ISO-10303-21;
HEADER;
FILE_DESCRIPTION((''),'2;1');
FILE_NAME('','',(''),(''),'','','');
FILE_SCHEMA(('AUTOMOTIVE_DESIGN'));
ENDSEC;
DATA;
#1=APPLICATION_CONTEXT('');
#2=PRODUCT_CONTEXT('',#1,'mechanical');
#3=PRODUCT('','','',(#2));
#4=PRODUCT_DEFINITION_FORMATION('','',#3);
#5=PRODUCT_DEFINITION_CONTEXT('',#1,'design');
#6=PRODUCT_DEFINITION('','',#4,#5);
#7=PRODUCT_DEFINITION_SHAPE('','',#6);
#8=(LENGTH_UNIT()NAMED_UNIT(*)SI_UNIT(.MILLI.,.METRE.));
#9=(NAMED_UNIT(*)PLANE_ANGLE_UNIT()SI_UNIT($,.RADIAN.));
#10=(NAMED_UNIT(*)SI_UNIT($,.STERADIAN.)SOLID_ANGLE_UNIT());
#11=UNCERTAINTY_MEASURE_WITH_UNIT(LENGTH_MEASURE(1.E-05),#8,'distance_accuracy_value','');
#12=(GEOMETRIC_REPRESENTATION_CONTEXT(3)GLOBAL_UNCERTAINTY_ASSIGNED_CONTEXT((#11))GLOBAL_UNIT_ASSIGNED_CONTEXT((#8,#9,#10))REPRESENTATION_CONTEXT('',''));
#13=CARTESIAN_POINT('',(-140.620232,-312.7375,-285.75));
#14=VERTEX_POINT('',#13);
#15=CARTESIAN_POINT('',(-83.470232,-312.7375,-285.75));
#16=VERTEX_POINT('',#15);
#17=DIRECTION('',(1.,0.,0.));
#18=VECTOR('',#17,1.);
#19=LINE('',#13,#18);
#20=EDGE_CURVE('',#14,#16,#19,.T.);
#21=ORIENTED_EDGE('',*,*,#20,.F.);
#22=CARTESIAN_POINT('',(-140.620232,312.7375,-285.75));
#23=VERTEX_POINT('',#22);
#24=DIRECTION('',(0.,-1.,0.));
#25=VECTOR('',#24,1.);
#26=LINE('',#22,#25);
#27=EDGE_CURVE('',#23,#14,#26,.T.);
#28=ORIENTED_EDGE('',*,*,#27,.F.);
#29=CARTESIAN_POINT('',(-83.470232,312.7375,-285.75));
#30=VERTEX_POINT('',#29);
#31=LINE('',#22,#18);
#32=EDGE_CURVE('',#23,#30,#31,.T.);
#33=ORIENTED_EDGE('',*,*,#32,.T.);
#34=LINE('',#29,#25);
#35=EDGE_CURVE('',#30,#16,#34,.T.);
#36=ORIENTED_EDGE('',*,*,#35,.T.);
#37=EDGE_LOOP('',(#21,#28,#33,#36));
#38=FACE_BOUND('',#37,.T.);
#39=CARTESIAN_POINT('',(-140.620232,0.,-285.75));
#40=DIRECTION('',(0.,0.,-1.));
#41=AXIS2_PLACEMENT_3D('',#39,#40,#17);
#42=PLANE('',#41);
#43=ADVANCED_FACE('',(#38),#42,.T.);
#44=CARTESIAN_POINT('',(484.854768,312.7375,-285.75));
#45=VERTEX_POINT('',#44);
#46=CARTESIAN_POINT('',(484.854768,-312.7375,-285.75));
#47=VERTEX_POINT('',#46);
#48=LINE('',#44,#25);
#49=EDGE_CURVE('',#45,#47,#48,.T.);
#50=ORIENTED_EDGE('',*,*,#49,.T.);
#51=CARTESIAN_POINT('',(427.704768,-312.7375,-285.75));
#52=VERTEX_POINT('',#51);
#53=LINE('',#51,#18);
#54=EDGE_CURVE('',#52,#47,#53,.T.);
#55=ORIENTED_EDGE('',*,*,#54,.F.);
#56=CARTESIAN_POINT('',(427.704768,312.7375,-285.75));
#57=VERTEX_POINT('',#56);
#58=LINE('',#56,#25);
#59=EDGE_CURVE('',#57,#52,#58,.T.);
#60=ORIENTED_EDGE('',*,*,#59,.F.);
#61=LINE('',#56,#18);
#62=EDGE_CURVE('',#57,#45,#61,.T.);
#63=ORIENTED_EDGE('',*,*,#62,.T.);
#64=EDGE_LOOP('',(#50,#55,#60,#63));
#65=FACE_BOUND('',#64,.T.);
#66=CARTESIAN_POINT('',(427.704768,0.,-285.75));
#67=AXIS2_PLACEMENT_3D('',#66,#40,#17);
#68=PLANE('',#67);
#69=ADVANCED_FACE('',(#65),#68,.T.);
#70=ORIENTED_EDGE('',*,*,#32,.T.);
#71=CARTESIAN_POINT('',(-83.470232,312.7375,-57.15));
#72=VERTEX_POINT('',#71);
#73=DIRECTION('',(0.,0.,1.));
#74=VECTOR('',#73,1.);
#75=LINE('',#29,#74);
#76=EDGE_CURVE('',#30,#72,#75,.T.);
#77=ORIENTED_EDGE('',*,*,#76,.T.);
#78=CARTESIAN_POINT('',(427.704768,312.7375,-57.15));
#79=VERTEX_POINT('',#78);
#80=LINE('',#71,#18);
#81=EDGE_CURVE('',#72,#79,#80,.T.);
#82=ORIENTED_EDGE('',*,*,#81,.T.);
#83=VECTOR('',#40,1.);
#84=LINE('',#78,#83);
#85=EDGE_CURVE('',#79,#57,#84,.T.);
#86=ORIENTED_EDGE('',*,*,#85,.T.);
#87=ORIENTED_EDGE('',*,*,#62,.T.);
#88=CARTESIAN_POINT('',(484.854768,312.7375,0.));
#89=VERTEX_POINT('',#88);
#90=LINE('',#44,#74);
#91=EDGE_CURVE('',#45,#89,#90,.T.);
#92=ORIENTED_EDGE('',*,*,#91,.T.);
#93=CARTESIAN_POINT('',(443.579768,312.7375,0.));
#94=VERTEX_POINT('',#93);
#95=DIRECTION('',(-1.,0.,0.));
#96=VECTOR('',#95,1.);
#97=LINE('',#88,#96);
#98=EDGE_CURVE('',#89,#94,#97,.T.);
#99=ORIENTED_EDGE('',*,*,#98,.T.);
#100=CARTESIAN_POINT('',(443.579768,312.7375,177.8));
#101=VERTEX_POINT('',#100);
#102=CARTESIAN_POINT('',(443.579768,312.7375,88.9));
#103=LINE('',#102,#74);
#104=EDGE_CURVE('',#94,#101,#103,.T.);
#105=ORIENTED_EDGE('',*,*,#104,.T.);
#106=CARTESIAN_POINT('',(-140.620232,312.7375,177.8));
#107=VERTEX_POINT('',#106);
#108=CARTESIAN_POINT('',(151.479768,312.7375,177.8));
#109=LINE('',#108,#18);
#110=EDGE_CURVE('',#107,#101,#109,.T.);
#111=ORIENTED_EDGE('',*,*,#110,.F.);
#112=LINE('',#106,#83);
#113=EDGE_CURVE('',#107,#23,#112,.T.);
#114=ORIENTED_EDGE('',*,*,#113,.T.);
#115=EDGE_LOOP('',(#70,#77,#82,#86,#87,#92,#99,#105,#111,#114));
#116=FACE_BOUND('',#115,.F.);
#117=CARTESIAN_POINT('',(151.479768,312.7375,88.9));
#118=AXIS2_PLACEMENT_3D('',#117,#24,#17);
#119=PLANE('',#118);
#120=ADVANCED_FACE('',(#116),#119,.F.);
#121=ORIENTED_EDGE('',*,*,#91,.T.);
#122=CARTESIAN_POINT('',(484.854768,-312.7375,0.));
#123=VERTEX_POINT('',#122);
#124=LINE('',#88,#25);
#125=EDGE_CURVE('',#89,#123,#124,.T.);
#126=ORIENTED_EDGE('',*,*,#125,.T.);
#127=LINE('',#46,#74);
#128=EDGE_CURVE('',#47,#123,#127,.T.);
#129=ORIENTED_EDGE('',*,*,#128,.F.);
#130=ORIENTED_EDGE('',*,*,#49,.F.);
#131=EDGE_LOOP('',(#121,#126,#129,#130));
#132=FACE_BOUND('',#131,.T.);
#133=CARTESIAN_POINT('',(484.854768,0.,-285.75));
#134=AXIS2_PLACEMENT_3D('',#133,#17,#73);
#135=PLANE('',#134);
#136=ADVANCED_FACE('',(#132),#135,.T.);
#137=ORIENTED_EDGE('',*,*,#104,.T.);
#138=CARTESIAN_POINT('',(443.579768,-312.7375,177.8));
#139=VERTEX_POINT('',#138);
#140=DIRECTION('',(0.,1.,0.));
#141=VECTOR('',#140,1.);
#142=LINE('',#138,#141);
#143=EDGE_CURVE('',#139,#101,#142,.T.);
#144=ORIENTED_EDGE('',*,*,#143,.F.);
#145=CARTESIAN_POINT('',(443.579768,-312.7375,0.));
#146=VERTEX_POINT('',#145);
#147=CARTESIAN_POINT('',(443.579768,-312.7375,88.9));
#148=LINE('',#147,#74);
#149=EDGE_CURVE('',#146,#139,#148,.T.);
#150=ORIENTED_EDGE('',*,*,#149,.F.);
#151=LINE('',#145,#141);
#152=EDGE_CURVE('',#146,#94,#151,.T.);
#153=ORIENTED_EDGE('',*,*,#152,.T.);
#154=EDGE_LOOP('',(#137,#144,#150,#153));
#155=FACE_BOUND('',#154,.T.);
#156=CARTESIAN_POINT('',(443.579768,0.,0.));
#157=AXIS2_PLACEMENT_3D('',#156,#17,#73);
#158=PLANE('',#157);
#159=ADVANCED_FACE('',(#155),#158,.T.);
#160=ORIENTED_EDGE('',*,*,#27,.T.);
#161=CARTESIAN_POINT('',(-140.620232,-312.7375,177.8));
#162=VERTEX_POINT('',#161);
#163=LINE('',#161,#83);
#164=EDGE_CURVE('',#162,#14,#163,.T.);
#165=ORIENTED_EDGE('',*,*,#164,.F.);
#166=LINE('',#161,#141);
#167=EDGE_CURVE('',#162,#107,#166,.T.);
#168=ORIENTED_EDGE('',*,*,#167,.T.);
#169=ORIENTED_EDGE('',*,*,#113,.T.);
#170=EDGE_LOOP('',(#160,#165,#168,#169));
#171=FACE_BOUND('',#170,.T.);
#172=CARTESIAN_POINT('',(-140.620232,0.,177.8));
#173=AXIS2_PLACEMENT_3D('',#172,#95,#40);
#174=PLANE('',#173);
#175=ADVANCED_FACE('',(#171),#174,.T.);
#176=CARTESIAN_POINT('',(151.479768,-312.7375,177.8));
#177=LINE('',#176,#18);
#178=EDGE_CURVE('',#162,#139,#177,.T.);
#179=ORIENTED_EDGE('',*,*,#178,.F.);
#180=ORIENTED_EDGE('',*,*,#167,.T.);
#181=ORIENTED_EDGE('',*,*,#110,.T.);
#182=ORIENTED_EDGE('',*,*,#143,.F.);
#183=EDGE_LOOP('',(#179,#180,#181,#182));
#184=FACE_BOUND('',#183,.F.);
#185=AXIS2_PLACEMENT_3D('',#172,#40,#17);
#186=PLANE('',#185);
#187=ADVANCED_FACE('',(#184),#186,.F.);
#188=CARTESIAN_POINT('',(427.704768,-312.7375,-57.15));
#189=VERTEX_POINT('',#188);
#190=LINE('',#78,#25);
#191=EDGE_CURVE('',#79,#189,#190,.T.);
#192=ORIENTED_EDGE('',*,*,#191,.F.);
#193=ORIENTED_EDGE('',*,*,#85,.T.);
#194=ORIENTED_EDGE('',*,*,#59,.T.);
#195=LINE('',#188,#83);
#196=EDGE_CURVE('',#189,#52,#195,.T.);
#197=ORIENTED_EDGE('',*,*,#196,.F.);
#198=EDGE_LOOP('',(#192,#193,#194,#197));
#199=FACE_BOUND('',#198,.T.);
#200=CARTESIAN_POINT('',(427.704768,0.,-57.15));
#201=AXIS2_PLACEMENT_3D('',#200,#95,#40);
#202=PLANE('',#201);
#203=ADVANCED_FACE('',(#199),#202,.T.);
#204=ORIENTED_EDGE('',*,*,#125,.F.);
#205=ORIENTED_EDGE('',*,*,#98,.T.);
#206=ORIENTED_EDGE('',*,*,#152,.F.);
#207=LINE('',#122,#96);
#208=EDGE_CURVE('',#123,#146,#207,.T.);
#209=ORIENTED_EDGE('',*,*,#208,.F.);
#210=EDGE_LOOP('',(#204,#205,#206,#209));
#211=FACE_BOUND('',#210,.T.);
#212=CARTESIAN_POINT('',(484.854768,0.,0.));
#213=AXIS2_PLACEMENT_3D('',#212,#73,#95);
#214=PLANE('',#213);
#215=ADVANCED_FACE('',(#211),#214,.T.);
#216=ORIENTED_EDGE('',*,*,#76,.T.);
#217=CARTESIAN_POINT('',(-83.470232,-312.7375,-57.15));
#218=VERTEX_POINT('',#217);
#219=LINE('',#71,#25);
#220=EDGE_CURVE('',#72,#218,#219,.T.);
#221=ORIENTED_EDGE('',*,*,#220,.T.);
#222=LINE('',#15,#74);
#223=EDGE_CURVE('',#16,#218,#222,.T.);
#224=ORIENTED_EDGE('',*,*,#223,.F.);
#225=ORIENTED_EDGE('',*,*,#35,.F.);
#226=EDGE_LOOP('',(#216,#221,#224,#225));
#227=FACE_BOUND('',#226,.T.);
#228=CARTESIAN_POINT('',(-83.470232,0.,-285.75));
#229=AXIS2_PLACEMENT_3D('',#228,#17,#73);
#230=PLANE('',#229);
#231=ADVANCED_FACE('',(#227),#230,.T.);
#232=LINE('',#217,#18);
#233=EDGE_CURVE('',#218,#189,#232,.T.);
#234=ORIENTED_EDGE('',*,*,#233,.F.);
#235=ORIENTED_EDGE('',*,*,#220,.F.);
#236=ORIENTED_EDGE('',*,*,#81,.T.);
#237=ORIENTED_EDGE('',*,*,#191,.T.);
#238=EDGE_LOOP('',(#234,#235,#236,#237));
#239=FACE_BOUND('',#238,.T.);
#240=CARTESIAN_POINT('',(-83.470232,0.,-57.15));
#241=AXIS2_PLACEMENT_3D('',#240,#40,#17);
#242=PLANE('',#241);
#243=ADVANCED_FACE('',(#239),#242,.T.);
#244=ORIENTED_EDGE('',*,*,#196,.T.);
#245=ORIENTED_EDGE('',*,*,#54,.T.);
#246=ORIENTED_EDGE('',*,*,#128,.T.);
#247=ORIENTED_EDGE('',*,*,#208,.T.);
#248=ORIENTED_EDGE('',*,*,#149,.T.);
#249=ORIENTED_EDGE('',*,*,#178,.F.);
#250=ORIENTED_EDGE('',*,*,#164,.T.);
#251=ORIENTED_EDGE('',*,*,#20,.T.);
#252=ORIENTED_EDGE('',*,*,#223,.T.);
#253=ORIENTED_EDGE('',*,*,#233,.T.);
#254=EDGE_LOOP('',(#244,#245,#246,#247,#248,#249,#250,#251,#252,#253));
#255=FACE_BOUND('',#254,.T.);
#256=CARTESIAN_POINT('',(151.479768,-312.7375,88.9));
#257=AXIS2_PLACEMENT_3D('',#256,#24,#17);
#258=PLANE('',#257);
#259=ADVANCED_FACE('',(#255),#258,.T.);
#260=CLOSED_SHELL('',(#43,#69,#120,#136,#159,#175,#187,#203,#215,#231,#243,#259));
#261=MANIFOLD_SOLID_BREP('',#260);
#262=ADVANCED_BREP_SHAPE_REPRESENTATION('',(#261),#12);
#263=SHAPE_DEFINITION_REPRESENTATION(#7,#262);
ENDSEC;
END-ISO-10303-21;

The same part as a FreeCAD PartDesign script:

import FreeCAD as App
import Part
import Sketcher
from FreeCAD import Vector
Q = App.Units.Quantity


def add_polygon(sketch, points):
    """Adds a closed chain of lines whose ends are joined by coincident constraints."""
    first, n = sketch.GeometryCount, len(points)
    for a, b in zip(points, points[1:] + points[:1]):
        sketch.addGeometry(Part.LineSegment(App.Vector(*a, 0), App.Vector(*b, 0)), False)
    for i in range(n):
        sketch.addConstraint(Sketcher.Constraint("Coincident", first + i, 2, first + (i + 1) % n, 1))

doc = App.newDocument("Part")
params = doc.addObject("Spreadsheet::Sheet", "Params")
for row, (alias, value) in enumerate([
    ("sketch1_width", "23 in"),
    ("sketch1_height", "9 in"),
    ("sketch1_height2", "7 in"),
    ("sketch1_width2", "2.25 in"),
    ("sketch1_height3", "18.25 in"),
    ("pad1_length", "24.625 in"),
], start=1):
    params.set(f"A{row}", alias)
    params.set(f"B{row}", "=" + value)
    params.setAlias(f"B{row}", alias)

body = doc.addObject("PartDesign::Body", "Body")

# Sketch on XZ plane
sketch1 = body.newObject("Sketcher::SketchObject", "Sketch")
sketch1.AttachmentSupport = (doc.getObject("XZ_Plane"), [""])
sketch1.MapMode = "FlatFace"
add_polygon(sketch1, [(-141, 178), (-141, -286), (-83, -286), (-83, -57), (428, -57), (428, -286), (485, -286), (485, 0), (444, 0), (444, 178)])  # lines 0-9
sketch1.addConstraint(Sketcher.Constraint("Vertical", 0))
sketch1.addConstraint(Sketcher.Constraint("Horizontal", 1))
sketch1.addConstraint(Sketcher.Constraint("Vertical", 2))
sketch1.addConstraint(Sketcher.Constraint("Horizontal", 3))
sketch1.addConstraint(Sketcher.Constraint("Vertical", 4))
sketch1.addConstraint(Sketcher.Constraint("Horizontal", 5))
sketch1.addConstraint(Sketcher.Constraint("Vertical", 6))
sketch1.addConstraint(Sketcher.Constraint("Horizontal", 7))
sketch1.addConstraint(Sketcher.Constraint("Vertical", 8))
sketch1.addConstraint(Sketcher.Constraint("Horizontal", 9))
sketch1.addConstraint(Sketcher.Constraint("PointOnObject", 6, 2, -1))
sketch1.addConstraint(Sketcher.Constraint("Horizontal", 1, 2, 4, 2))
sketch1.addConstraint(Sketcher.Constraint("Equal", 1, 5))
sketch1.addConstraint(Sketcher.Constraint("DistanceX", 9, 2, 9, 1, Q("23 in")))
sketch1.addConstraint(Sketcher.Constraint("DistanceY", 2, 1, 2, 2, Q("9 in")))
sketch1.addConstraint(Sketcher.Constraint("DistanceY", 8, 1, 8, 2, Q("7 in")))
sketch1.addConstraint(Sketcher.Constraint("DistanceX", 1, 1, 1, 2, Q("2.25 in")))
sketch1.addConstraint(Sketcher.Constraint("DistanceY", 0, 2, 0, 1, Q("18.25 in")))
sketch1.addConstraint(Sketcher.Constraint("DistanceX", 3, 1, 3, 2, Q("20.125 in")))
sketch1.addConstraint(Sketcher.Constraint("DistanceX", 0, 2, -1, 1, 140.620232))
sketch1.setExpression("Constraints[23]", "Params.sketch1_width")
sketch1.setExpression("Constraints[24]", "Params.sketch1_height")
sketch1.setExpression("Constraints[25]", "Params.sketch1_height2")
sketch1.setExpression("Constraints[26]", "Params.sketch1_width2")
sketch1.setExpression("Constraints[27]", "Params.sketch1_height3")
pad1 = body.newObject("PartDesign::Pad", "Pad")
pad1.Profile = sketch1
pad1.setExpression("Length", "Params.pad1_length")
pad1.Midplane = True

doc.recompute()
